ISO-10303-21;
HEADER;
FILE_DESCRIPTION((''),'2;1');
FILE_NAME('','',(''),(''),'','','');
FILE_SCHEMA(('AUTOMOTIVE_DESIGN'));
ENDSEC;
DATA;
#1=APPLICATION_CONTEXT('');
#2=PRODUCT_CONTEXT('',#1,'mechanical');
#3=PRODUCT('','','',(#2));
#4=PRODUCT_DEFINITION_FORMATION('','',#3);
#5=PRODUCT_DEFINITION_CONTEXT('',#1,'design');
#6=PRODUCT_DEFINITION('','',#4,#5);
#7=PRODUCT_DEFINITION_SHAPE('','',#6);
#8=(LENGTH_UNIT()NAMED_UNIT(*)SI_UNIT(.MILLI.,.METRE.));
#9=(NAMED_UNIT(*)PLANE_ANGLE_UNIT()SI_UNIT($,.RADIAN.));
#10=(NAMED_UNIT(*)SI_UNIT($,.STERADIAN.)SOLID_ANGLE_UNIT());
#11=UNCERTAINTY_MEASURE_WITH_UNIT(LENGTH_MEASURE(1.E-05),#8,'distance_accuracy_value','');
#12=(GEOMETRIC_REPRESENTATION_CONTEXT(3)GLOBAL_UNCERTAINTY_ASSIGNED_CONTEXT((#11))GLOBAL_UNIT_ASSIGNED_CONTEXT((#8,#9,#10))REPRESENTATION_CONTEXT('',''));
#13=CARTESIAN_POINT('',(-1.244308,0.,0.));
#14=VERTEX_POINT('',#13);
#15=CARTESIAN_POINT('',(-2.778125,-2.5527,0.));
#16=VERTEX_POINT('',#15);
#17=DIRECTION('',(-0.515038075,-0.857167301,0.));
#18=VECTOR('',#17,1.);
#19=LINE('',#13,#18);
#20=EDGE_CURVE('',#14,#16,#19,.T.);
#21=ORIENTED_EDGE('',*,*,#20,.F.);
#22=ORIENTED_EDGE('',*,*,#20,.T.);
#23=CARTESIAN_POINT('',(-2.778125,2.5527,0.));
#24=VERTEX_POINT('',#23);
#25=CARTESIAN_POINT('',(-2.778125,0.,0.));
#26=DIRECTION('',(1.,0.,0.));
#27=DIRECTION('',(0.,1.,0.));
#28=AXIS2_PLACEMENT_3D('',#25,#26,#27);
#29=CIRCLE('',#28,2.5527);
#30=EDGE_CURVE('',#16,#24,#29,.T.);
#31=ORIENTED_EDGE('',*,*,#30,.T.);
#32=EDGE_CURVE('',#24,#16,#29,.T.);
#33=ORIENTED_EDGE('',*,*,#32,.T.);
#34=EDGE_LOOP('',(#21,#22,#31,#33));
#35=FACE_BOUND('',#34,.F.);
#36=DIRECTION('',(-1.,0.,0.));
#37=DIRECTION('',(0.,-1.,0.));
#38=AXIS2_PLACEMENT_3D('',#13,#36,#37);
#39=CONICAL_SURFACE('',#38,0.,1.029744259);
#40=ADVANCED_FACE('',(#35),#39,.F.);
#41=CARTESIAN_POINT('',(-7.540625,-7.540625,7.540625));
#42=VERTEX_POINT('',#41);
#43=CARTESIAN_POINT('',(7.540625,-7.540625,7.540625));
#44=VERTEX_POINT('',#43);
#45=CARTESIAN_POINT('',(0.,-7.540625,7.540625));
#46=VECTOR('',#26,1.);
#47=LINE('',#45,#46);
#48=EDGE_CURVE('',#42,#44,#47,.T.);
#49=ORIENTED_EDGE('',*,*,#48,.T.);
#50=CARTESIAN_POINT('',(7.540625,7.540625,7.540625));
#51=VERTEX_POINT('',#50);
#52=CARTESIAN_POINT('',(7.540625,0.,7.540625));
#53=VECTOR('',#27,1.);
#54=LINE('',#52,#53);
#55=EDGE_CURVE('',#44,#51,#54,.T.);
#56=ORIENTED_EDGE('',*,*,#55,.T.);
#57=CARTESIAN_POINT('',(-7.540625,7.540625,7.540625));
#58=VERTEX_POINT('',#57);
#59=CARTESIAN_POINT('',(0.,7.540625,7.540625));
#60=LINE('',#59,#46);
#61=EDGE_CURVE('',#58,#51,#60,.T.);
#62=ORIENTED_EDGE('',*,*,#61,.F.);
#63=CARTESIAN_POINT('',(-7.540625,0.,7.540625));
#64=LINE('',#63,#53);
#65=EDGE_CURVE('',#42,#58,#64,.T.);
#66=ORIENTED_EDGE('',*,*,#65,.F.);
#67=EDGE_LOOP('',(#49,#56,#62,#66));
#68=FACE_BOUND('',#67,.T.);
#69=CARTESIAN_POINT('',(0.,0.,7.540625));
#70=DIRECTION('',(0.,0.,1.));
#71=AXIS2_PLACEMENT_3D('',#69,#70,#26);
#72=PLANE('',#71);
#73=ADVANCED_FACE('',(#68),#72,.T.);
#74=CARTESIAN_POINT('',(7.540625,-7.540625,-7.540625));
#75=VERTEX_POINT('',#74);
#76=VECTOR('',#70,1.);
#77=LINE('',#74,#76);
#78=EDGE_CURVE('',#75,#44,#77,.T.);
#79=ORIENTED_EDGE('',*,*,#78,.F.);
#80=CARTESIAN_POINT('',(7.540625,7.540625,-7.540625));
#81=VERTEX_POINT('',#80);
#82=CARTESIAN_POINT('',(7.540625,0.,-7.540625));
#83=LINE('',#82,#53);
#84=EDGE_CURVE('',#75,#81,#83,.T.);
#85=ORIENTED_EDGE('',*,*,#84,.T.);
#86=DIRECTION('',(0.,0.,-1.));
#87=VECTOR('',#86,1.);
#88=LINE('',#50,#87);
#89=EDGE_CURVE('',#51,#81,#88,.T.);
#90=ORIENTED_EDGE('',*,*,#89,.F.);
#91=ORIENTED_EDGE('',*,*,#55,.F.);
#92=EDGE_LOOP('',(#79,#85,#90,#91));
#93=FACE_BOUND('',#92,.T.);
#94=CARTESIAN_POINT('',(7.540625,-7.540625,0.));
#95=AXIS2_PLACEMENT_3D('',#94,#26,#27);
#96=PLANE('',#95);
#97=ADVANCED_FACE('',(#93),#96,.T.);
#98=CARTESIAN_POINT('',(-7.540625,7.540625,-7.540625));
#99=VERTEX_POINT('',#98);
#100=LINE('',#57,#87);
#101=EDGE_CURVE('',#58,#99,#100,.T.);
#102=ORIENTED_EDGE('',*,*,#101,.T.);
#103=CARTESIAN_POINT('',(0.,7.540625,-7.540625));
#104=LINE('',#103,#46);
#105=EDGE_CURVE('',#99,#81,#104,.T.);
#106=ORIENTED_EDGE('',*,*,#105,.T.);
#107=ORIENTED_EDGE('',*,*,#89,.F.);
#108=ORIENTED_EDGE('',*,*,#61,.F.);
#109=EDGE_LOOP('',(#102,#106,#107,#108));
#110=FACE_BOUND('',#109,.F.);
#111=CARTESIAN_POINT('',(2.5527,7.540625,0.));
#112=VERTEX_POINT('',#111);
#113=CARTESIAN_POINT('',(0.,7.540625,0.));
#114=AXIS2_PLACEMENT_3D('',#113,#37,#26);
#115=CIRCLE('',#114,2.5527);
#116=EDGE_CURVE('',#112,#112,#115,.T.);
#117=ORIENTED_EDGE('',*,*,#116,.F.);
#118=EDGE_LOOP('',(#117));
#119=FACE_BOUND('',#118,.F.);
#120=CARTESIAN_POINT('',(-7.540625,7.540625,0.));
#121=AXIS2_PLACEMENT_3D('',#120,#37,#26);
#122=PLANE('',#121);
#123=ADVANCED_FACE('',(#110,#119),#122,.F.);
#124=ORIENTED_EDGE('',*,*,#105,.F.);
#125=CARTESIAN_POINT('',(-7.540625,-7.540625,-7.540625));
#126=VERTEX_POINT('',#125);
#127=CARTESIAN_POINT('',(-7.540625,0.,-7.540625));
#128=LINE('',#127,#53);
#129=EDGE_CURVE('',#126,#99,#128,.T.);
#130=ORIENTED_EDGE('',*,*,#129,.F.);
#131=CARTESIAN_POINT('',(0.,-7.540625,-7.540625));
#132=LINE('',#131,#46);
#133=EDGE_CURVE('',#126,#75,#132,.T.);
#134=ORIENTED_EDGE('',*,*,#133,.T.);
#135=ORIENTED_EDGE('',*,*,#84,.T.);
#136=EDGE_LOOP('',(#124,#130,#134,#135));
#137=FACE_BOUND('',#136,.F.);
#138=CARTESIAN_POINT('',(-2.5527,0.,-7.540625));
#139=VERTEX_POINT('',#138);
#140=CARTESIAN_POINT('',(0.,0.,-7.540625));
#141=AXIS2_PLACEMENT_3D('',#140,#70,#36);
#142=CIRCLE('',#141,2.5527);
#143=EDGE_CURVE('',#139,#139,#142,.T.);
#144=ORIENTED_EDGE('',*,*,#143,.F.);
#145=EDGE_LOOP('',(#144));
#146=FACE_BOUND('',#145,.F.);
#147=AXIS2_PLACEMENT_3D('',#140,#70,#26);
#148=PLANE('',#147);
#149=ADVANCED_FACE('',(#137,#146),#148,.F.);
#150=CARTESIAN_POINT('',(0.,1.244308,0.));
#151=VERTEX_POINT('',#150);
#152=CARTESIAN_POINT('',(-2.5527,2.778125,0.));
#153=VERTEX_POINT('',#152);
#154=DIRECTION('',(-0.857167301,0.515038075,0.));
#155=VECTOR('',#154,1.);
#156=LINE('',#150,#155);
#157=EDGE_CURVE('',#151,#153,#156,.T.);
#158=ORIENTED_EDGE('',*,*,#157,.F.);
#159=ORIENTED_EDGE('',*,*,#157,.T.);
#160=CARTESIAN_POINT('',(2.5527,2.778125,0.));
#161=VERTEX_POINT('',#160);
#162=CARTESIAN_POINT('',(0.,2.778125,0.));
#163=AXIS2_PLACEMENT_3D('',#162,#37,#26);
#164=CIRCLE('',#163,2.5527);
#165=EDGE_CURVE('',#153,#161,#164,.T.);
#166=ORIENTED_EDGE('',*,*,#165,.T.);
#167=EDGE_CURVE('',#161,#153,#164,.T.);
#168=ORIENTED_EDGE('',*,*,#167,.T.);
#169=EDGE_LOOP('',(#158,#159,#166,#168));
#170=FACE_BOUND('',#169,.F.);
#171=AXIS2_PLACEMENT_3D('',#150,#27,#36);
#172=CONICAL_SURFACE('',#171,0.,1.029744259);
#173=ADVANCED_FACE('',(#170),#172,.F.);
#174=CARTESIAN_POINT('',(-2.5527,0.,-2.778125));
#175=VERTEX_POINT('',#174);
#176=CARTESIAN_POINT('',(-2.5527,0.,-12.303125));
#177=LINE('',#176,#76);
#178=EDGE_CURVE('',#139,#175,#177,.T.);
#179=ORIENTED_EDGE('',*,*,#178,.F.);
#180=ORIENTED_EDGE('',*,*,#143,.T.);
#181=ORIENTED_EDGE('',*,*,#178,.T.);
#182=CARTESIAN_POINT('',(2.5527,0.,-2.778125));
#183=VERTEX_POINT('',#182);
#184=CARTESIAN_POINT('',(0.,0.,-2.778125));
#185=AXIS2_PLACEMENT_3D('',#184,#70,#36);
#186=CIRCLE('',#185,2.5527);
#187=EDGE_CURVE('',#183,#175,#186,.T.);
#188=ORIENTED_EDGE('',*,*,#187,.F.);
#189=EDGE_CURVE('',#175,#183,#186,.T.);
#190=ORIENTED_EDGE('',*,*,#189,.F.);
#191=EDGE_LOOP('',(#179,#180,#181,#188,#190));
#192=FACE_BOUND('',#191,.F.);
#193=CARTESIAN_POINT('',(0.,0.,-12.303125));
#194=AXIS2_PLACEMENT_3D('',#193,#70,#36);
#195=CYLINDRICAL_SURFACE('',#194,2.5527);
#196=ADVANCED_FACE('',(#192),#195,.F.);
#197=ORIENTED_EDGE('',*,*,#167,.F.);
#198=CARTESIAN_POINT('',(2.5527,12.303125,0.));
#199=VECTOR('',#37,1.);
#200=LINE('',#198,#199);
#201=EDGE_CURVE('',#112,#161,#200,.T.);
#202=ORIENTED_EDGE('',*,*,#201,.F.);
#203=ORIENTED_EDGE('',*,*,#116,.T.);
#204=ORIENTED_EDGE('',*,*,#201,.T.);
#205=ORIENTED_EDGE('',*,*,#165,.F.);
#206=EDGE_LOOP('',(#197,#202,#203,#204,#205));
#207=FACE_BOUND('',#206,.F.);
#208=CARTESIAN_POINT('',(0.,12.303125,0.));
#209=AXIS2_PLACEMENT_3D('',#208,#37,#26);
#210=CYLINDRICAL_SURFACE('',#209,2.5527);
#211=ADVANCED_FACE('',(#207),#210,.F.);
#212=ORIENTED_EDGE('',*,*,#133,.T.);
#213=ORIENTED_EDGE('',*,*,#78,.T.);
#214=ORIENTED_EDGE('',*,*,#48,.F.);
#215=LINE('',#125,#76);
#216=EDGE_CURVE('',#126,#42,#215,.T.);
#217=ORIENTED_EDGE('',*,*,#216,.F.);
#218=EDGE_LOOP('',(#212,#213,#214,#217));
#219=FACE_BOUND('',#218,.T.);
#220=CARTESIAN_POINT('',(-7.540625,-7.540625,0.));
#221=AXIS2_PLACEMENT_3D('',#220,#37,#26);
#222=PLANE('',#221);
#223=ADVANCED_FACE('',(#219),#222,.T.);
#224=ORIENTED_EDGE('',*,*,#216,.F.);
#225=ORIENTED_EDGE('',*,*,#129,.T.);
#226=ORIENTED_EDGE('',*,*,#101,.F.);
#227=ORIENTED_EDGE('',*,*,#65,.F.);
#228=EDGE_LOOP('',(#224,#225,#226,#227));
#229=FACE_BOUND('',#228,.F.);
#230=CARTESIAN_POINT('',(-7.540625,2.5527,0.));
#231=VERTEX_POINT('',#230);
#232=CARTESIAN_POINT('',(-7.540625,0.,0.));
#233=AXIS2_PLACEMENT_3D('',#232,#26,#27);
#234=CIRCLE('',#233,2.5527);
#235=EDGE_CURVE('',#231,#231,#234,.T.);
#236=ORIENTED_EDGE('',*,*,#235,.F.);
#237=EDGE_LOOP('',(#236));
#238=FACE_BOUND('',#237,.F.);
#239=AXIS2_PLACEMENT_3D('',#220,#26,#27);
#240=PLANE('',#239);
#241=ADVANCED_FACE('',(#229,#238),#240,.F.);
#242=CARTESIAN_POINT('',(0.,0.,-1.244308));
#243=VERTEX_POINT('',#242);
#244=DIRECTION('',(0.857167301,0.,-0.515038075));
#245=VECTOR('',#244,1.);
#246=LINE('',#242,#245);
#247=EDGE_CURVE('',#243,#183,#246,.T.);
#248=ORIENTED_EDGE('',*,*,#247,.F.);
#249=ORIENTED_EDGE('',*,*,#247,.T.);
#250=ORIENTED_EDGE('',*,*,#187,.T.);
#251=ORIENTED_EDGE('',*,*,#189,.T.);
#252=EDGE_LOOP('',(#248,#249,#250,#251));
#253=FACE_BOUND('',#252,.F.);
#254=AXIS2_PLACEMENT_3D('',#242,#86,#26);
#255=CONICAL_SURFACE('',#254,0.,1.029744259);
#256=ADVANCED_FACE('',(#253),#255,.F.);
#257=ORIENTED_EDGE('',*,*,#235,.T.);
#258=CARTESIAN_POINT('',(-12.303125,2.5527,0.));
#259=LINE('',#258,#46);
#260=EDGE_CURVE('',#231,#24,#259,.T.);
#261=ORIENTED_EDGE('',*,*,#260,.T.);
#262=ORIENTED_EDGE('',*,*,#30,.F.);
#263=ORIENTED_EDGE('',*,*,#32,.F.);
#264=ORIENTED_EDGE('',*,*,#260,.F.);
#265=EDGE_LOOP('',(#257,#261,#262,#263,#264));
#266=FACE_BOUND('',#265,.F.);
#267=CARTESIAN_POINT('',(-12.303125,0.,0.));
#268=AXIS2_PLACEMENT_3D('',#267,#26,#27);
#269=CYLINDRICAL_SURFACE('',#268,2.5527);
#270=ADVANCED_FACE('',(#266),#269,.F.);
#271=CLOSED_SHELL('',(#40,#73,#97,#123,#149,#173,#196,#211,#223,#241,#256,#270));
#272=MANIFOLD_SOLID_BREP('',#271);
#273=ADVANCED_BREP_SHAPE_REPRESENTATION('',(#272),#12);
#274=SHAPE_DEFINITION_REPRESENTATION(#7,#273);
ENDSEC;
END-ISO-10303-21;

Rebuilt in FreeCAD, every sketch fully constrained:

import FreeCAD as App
import Part
import Sketcher
Q = App.Units.Quantity

doc = App.newDocument("Part")
body = doc.addObject("PartDesign::Body", "Body")

# Sketch on XY plane
sketch1 = body.newObject("Sketcher::SketchObject", "Sketch")
sketch1.AttachmentSupport = (doc.getObject("XY_Plane"), [""])
sketch1.MapMode = "FlatFace"
sketch1.addGeometry(Part.LineSegment(App.Vector(-7.540625, 7.540625, 0), App.Vector(-7.540625, -7.540625, 0)), False)
sketch1.addGeometry(Part.LineSegment(App.Vector(-7.540625, -7.540625, 0), App.Vector(7.540625, -7.540625, 0)), False)
sketch1.addGeometry(Part.LineSegment(App.Vector(7.540625, -7.540625, 0), App.Vector(7.540625, 7.540625, 0)), False)
sketch1.addGeometry(Part.LineSegment(App.Vector(7.540625, 7.540625, 0), App.Vector(-7.540625, 7.540625, 0)), False)
sketch1.addConstraint(Sketcher.Constraint("Coincident", 0, 2, 1, 1))
sketch1.addConstraint(Sketcher.Constraint("Coincident", 1, 2, 2, 1))
sketch1.addConstraint(Sketcher.Constraint("Coincident", 2, 2, 3, 1))
sketch1.addConstraint(Sketcher.Constraint("Coincident", 3, 2, 0, 1))
sketch1.addConstraint(Sketcher.Constraint("Vertical", 0))
sketch1.addConstraint(Sketcher.Constraint("Horizontal", 1))
sketch1.addConstraint(Sketcher.Constraint("Vertical", 2))
sketch1.addConstraint(Sketcher.Constraint("Horizontal", 3))
sketch1.addConstraint(Sketcher.Constraint("Symmetric", 0, 2, 2, 2, -1, 1))
sketch1.addConstraint(Sketcher.Constraint("Equal", 3, 0))
sketch1.addConstraint(Sketcher.Constraint("DistanceX", 1, 1, 1, 2, Q("0.59375 in")))
pad1 = body.newObject("PartDesign::Pad", "Pad")
pad1.Profile = sketch1
pad1.Length = Q("0.59375 in")
pad1.Midplane = True

# Sketch on XY plane
sketch2 = body.newObject("Sketcher::SketchObject", "Sketch001")
sketch2.AttachmentSupport = (doc.getObject("XY_Plane"), [""])
sketch2.MapMode = "FlatFace"
sketch2.AttachmentOffset = App.Placement(App.Vector(0, 0, -0.296875 * 25.4), App.Rotation())
sketch2.addGeometry(Part.Circle(App.Vector(0, 0, 0), App.Vector(0, 0, 1), 2.5527), False)
sketch2.addConstraint(Sketcher.Constraint("Coincident", 0, 3, -1, 1))
sketch2.addConstraint(Sketcher.Constraint("Diameter", 0, Q("0.201 in")))
doc.recompute()
hole = body.newObject("PartDesign::Hole", "Hole")
hole.Profile = sketch2
hole.ThreadType = "None"
hole.Diameter = Q("0.201 in")
hole.DepthType = "Dimension"
hole.Depth = Q("0.1875 in")
hole.DrillPoint = "Angled"
hole.DrillPointAngle = 118
hole.Reversed = True

# Sketch on XZ plane
sketch3 = body.newObject("Sketcher::SketchObject", "Sketch002")
sketch3.AttachmentSupport = (doc.getObject("XZ_Plane"), [""])
sketch3.MapMode = "FlatFace"
sketch3.AttachmentOffset = App.Placement(App.Vector(0, 0, -0.296875 * 25.4), App.Rotation())
sketch3.addGeometry(Part.Circle(App.Vector(0, 0, 0), App.Vector(0, 0, 1), 2.5527), False)
sketch3.addConstraint(Sketcher.Constraint("Coincident", 0, 3, -1, 1))
sketch3.addConstraint(Sketcher.Constraint("Diameter", 0, Q("0.201 in")))
doc.recompute()
hole2 = body.newObject("PartDesign::Hole", "Hole001")
hole2.Profile = sketch3
hole2.ThreadType = "None"
hole2.Diameter = Q("0.201 in")
hole2.DepthType = "Dimension"
hole2.Depth = Q("0.1875 in")
hole2.DrillPoint = "Angled"
hole2.DrillPointAngle = 118
hole2.Reversed = True

# Sketch on YZ plane
sketch4 = body.newObject("Sketcher::SketchObject", "Sketch003")
sketch4.AttachmentSupport = (doc.getObject("YZ_Plane"), [""])
sketch4.MapMode = "FlatFace"
sketch4.AttachmentOffset = App.Placement(App.Vector(0, 0, -0.296875 * 25.4), App.Rotation())
sketch4.addGeometry(Part.Circle(App.Vector(0, 0, 0), App.Vector(0, 0, 1), 2.5527), False)
sketch4.addConstraint(Sketcher.Constraint("Coincident", 0, 3, -1, 1))
sketch4.addConstraint(Sketcher.Constraint("Diameter", 0, Q("0.201 in")))
doc.recompute()
hole3 = body.newObject("PartDesign::Hole", "Hole002")
hole3.Profile = sketch4
hole3.ThreadType = "None"
hole3.Diameter = Q("0.201 in")
hole3.DepthType = "Dimension"
hole3.Depth = Q("0.1875 in")
hole3.DrillPoint = "Angled"
hole3.DrillPointAngle = 118
hole3.Reversed = True

doc.recompute()
